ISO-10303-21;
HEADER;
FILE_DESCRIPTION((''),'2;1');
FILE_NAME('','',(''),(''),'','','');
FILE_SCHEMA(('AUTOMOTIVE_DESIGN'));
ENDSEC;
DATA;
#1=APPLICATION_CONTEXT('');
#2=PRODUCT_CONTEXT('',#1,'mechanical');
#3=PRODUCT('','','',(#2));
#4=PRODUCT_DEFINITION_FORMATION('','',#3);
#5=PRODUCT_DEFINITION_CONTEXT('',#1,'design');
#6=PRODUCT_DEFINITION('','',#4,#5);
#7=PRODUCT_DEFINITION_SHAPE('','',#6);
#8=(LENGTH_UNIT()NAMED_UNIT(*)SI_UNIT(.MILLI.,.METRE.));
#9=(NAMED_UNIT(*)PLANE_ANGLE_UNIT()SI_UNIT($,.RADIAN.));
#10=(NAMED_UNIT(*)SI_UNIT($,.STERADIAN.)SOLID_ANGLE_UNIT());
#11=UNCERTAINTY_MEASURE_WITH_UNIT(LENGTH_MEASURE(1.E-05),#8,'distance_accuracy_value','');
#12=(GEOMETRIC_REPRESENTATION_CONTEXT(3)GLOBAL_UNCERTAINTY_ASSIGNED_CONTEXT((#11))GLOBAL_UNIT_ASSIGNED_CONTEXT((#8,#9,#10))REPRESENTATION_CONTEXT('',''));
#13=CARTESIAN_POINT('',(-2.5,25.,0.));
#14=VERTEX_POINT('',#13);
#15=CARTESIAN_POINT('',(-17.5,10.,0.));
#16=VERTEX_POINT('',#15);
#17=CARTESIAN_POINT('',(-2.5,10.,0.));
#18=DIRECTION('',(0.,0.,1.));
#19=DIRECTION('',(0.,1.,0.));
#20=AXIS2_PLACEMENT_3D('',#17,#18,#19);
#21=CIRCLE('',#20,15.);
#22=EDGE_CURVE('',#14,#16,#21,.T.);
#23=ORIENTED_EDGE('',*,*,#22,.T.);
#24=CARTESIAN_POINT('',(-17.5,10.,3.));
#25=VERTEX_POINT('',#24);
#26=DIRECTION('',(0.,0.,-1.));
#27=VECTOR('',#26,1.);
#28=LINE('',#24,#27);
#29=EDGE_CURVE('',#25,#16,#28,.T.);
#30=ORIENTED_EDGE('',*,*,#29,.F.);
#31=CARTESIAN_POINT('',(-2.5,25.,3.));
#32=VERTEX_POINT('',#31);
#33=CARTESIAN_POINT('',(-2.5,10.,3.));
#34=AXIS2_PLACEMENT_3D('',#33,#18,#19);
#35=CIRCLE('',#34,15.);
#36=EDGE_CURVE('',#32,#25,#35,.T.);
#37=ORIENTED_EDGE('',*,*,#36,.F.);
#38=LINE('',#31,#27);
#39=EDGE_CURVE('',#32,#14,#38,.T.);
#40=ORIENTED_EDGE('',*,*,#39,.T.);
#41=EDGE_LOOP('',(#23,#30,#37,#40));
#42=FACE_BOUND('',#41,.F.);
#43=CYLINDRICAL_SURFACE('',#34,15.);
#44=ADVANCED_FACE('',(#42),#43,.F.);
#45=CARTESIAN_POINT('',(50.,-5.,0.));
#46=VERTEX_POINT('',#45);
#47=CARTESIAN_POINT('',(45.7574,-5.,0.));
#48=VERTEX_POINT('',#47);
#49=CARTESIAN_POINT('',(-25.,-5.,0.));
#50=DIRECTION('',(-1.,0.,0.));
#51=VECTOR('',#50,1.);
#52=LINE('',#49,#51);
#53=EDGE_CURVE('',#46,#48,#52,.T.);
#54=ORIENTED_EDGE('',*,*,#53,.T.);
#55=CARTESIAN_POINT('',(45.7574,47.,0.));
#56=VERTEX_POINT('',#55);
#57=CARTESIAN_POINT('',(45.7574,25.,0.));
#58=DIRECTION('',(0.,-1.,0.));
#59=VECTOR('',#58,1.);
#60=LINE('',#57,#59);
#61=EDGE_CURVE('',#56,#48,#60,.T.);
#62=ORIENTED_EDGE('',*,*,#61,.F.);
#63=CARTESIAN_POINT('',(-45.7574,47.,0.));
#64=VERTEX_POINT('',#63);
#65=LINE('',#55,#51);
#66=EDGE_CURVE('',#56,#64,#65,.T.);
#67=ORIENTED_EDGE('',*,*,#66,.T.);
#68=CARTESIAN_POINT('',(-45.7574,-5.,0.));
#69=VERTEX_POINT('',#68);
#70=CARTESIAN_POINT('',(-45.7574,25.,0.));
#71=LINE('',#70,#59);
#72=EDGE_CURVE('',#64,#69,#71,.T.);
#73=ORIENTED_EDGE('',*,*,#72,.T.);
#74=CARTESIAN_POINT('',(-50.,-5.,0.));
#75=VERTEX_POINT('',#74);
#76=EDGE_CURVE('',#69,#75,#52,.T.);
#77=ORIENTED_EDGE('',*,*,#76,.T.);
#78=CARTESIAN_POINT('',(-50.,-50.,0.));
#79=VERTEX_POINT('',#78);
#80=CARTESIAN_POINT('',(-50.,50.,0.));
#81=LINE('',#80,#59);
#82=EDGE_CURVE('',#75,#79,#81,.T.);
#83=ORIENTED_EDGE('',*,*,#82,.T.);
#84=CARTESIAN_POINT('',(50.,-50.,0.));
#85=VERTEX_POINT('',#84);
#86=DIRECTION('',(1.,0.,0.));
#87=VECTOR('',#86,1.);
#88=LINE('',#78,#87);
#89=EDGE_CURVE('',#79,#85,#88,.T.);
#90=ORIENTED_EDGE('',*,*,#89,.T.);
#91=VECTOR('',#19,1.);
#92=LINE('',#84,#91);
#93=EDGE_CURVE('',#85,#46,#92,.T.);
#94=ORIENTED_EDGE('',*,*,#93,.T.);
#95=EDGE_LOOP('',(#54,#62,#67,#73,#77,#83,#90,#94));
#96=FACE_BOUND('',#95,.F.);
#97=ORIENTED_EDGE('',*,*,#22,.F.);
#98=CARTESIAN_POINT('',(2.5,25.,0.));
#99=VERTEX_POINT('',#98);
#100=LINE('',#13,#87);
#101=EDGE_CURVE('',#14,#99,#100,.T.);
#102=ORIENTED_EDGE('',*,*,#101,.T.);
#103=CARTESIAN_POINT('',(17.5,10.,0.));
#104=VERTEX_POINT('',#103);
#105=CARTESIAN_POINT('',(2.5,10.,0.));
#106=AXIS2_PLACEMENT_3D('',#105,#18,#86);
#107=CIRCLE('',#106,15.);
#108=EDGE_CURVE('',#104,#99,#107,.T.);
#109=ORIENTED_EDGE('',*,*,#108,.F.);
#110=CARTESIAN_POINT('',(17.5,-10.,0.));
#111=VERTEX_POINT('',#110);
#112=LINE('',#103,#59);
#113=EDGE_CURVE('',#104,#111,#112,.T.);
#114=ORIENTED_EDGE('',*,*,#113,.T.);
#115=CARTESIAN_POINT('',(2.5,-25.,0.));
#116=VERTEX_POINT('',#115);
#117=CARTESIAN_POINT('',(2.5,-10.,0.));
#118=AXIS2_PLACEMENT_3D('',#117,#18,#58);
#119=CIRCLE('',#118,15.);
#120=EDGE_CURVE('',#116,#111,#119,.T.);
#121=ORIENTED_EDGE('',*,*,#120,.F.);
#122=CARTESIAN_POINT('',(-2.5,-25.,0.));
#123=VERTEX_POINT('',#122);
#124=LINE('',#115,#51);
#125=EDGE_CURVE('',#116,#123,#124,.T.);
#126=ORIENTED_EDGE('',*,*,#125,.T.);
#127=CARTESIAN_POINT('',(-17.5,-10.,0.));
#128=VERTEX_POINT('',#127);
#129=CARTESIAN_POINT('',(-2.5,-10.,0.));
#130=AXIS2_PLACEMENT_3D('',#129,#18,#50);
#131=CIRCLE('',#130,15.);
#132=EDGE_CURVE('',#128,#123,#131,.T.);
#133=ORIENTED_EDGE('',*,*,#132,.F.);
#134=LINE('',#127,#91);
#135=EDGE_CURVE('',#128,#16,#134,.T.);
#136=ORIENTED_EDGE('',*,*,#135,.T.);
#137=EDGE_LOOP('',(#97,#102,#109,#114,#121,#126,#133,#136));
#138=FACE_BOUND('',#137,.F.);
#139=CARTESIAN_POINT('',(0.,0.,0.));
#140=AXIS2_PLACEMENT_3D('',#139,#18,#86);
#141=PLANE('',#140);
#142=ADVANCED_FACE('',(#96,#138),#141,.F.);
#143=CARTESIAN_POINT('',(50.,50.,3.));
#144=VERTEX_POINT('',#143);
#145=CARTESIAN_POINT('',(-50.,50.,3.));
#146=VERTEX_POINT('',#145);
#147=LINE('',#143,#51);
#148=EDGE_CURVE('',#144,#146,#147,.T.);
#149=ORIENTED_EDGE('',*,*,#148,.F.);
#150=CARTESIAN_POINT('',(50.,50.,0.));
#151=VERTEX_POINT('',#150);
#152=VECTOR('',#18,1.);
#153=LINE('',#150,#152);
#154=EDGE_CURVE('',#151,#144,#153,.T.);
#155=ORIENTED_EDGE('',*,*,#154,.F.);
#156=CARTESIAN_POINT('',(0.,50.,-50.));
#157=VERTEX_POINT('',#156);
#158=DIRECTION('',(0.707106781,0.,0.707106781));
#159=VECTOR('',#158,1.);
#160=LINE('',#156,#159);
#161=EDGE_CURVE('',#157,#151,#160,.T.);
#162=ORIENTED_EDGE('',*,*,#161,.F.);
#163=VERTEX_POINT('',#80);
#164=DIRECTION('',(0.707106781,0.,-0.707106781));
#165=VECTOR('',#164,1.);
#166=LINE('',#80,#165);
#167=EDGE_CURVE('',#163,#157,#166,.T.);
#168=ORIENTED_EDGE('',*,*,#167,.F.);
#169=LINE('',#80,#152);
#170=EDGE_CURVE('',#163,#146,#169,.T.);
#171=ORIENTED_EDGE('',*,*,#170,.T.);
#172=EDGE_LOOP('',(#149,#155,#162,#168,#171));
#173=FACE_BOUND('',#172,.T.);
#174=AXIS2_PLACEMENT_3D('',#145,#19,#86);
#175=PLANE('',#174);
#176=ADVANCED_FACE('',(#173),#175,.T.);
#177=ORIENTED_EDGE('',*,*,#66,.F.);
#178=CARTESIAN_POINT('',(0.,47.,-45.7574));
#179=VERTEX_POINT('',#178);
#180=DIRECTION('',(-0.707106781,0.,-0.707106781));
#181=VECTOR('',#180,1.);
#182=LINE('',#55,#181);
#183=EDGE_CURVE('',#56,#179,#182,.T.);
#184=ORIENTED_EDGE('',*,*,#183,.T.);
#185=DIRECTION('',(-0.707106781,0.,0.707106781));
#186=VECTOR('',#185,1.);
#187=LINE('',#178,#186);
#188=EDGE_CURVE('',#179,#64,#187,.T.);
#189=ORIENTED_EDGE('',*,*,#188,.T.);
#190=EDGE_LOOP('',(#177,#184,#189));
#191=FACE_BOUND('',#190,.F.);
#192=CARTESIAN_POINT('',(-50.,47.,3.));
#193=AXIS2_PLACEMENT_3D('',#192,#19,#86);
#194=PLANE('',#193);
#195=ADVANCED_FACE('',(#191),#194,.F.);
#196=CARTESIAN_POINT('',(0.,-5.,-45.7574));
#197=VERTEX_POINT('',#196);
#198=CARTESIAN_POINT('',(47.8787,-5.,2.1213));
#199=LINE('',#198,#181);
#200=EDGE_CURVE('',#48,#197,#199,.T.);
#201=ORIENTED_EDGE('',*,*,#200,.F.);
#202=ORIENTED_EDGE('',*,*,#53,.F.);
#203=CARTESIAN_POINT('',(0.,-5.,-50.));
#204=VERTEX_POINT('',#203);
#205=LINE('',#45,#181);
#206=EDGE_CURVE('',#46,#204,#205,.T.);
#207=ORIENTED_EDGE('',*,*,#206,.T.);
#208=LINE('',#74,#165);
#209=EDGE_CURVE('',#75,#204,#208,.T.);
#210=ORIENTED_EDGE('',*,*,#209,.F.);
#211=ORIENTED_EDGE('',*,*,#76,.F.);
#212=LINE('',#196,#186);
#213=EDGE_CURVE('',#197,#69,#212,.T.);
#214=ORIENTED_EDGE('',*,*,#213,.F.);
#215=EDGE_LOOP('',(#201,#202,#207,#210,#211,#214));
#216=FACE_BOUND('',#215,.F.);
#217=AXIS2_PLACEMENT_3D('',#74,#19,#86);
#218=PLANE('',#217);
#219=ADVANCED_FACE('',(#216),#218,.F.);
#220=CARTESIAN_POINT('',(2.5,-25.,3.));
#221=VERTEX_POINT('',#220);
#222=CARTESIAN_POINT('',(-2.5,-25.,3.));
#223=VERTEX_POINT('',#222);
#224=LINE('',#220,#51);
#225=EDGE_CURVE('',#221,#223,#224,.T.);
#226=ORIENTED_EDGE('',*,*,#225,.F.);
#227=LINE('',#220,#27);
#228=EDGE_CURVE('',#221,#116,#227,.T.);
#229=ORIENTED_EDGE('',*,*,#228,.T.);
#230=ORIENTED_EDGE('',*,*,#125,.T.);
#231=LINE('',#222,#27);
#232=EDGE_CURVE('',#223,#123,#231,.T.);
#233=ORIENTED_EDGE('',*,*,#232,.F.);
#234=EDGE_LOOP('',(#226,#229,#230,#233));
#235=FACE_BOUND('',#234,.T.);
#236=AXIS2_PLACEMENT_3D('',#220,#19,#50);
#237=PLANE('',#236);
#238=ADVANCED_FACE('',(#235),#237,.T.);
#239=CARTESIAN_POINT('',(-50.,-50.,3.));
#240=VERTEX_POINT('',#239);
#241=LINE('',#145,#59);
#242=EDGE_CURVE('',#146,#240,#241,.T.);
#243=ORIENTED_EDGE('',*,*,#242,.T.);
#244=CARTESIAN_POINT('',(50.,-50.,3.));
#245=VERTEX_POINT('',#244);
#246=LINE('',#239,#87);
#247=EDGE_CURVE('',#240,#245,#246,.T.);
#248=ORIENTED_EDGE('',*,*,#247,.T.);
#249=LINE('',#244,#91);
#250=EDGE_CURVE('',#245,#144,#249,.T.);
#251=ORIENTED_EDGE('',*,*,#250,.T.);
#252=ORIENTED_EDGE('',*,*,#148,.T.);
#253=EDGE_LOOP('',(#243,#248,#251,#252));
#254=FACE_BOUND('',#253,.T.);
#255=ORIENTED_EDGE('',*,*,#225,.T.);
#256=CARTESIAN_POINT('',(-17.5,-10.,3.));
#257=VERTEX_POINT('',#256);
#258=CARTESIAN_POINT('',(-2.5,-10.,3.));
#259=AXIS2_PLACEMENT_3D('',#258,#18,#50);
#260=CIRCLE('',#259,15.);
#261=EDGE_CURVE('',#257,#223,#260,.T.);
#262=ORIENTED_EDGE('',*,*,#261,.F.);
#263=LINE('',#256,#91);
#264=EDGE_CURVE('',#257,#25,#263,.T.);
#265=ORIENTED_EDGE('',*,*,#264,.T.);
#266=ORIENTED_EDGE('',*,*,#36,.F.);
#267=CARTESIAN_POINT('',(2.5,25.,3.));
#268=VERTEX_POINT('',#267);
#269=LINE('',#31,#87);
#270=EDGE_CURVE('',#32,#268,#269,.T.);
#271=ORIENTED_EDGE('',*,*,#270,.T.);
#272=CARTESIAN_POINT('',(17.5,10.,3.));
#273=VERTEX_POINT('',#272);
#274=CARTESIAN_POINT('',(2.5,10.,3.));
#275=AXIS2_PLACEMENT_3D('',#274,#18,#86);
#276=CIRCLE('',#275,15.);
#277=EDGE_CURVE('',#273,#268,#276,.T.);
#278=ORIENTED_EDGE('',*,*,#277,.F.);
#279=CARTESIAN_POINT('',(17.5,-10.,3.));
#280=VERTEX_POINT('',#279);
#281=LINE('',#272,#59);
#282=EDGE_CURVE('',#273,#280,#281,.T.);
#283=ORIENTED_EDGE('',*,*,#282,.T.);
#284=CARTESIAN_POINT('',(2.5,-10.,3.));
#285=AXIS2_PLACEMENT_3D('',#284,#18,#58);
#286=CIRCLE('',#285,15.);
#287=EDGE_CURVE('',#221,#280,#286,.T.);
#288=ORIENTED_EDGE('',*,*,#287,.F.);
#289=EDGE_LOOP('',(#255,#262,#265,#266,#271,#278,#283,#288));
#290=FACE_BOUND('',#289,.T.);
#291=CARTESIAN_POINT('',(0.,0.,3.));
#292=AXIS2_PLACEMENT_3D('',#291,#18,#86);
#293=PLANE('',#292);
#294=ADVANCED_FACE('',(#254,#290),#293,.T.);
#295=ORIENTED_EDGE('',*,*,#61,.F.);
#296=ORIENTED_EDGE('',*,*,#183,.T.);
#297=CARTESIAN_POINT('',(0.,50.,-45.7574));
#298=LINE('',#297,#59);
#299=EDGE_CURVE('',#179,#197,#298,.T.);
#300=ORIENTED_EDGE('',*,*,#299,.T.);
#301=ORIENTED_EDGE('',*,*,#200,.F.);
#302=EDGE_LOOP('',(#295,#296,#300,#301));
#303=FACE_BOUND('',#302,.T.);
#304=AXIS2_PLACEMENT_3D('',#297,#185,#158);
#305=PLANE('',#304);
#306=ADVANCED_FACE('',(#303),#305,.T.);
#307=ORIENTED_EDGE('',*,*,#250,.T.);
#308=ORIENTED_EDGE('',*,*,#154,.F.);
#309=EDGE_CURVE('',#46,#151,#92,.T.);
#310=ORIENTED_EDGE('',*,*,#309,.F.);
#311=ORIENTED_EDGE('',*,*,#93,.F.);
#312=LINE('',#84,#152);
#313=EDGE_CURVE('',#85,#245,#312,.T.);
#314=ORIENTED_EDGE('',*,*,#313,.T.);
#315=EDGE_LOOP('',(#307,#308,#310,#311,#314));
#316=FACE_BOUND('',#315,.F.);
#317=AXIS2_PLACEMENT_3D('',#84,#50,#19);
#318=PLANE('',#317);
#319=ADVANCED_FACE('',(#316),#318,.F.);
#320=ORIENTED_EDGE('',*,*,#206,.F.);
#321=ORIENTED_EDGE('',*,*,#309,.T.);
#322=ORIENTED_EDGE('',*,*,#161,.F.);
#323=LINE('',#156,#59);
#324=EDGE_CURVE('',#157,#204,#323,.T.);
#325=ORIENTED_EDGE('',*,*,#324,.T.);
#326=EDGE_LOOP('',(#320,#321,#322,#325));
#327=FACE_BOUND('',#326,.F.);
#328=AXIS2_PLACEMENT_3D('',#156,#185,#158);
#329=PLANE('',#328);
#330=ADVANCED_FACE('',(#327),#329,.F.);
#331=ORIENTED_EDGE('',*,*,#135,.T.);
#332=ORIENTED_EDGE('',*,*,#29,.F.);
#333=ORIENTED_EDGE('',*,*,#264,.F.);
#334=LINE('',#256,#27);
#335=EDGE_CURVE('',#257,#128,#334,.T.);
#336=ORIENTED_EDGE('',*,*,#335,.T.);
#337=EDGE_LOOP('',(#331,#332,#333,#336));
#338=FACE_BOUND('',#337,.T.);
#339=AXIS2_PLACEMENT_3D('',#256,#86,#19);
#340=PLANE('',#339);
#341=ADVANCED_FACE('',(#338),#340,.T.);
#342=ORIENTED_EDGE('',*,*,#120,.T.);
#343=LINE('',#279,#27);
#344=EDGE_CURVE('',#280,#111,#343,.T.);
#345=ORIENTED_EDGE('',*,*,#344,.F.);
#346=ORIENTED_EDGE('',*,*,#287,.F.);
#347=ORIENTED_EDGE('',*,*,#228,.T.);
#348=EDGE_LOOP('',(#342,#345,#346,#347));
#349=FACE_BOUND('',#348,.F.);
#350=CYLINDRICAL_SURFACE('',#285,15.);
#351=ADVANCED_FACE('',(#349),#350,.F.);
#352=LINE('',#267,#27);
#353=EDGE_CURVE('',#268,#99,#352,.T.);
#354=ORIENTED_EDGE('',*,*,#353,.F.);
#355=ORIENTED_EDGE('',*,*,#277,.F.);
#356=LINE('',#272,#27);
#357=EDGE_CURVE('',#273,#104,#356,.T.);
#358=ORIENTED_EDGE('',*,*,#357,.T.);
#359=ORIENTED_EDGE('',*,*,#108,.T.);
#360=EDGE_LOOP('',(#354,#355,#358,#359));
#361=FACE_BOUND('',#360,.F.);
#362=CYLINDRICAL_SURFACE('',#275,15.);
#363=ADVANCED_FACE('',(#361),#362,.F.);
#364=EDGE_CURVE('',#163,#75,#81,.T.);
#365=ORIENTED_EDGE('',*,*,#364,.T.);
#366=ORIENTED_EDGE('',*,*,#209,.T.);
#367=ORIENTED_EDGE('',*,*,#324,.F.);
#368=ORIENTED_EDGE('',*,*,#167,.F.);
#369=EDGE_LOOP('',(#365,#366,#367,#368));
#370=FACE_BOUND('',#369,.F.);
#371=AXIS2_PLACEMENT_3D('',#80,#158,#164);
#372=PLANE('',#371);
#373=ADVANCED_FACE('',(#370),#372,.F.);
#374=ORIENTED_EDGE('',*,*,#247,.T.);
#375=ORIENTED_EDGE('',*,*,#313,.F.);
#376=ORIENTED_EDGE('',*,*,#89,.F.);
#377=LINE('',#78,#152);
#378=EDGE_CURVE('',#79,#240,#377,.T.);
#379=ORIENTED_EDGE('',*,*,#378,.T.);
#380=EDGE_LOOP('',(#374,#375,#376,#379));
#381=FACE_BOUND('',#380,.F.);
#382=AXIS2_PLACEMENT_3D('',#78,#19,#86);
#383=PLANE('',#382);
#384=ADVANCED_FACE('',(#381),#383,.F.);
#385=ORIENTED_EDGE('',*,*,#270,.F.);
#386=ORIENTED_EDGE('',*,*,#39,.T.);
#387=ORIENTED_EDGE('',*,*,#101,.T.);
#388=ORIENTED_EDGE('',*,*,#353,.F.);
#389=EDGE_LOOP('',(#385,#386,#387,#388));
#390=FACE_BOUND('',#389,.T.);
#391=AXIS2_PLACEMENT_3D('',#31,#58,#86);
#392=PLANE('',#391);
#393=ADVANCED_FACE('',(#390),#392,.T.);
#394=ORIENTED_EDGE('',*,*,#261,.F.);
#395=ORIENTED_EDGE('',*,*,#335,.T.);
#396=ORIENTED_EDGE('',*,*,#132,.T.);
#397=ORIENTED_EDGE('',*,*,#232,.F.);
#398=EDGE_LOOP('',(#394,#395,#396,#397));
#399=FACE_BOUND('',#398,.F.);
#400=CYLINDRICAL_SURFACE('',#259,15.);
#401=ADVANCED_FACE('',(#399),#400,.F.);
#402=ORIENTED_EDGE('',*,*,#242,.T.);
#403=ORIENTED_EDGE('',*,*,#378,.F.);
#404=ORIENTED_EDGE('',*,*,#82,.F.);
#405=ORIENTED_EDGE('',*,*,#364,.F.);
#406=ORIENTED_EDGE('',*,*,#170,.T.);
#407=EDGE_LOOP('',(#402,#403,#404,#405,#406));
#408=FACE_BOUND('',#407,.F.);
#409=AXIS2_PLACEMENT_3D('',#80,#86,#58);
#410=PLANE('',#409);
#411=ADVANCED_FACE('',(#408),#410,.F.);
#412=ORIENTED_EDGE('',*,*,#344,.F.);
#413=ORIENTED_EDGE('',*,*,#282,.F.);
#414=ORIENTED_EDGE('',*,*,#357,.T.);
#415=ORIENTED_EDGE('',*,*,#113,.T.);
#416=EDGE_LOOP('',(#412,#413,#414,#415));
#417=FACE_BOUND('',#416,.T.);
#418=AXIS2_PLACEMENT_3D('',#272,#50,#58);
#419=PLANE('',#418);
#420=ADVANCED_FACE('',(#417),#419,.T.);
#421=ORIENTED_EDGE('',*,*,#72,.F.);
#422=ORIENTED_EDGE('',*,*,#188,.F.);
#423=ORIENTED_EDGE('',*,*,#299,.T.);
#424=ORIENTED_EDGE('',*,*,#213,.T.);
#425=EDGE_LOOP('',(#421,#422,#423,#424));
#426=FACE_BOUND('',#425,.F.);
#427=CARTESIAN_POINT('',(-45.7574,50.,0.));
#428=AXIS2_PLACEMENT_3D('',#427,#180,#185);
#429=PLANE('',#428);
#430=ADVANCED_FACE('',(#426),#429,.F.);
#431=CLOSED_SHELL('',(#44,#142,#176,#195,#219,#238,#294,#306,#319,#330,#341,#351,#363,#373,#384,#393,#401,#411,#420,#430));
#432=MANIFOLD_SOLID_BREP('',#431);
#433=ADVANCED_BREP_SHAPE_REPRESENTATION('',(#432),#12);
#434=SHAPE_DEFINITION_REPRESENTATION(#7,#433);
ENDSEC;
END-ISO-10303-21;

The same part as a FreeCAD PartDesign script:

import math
import FreeCAD as App
import Part
import Sketcher
from FreeCAD import Vector


def add_polygon(sketch, points):
    """Adds a closed chain of lines whose ends are joined by coincident constraints."""
    first, n = sketch.GeometryCount, len(points)
    for a, b in zip(points, points[1:] + points[:1]):
        sketch.addGeometry(Part.LineSegment(App.Vector(*a, 0), App.Vector(*b, 0)), False)
    for i in range(n):
        sketch.addConstraint(Sketcher.Constraint("Coincident", first + i, 2, first + (i + 1) % n, 1))

doc = App.newDocument("Part")
params = doc.addObject("Spreadsheet::Sheet", "Params")
for row, (alias, value) in enumerate([
    ("sketch1_width", "100 mm"),
    ("pad1_length", "3 mm"),
    ("sketch2_length", "3 mm"),
    ("pad2_length", "55 mm"),
    ("sketch3_radius", "15 mm"),
    ("sketch3_width", "5 mm"),
    ("pocket1_length", "3 mm"),
    ("pad3_length", "3 mm"),
], start=1):
    params.set(f"A{row}", alias)
    params.set(f"B{row}", "=" + value)
    params.setAlias(f"B{row}", alias)

body = doc.addObject("PartDesign::Body", "Body")

# Sketch on XY plane
sketch1 = body.newObject("Sketcher::SketchObject", "Sketch")
sketch1.AttachmentSupport = (doc.getObject("XY_Plane"), [""])
sketch1.MapMode = "FlatFace"
add_polygon(sketch1, [(-50, 50), (-50, -50), (50, -50), (50, 50)])  # lines 0-3
sketch1.addConstraint([
    Sketcher.Constraint("Vertical", 0),
    Sketcher.Constraint("Horizontal", 1),
    Sketcher.Constraint("Vertical", 2),
    Sketcher.Constraint("Horizontal", 3),
    Sketcher.Constraint("Symmetric", 0, 2, 2, 2, -1, 1),
    Sketcher.Constraint("Equal", 3, 0),
    Sketcher.Constraint("DistanceX", 1, 1, 1, 2, 100.0),
])
sketch1.setExpression("Constraints[10]", "Params.sketch1_width")
pad1 = body.newObject("PartDesign::Pad", "Pad")
pad1.Profile = sketch1
pad1.setExpression("Length", "Params.pad1_length")

# Sketch on XZ plane
sketch2 = body.newObject("Sketcher::SketchObject", "Sketch001")
sketch2.AttachmentSupport = (doc.getObject("XZ_Plane"), [""])
sketch2.MapMode = "FlatFace"
sketch2.AttachmentOffset = App.Placement(Vector(0, 0, -50), App.Rotation())
add_polygon(sketch2, [(0, -50), (-50, 0), (-47.9, 2.1), (0, -45.8), (47.9, 2.1), (50, 0)])  # lines 0-5
sketch2.addConstraint([
    Sketcher.Constraint("Symmetric", 0, 2, 4, 2, -1, 1),
    Sketcher.Constraint("Symmetric", 1, 2, 3, 2, -2),
    Sketcher.Constraint("PointOnObject", 0, 2, -1),
    Sketcher.Constraint("PointOnObject", 2, 2, -2),
    Sketcher.Constraint("PointOnObject", 5, 2, -2),
    Sketcher.Constraint("Perpendicular", 0, 1),
    Sketcher.Constraint("Perpendicular", 1, 2),
    Sketcher.Constraint("Perpendicular", 2, 3),
    Sketcher.Constraint("Distance", 1, 3.0),
    Sketcher.Constraint("DistanceX", 0, 2, -1, 1, 50.0),
])
sketch2.setExpression("Constraints[14]", "Params.sketch2_length")
pad2 = body.newObject("PartDesign::Pad", "Pad001")
pad2.Profile = sketch2
pad2.setExpression("Length", "Params.pad2_length")

# Sketch on XY plane
sketch3 = body.newObject("Sketcher::SketchObject", "Sketch002")
sketch3.AttachmentSupport = (doc.getObject("XY_Plane"), [""])
sketch3.MapMode = "FlatFace"
sketch3.AttachmentOffset = App.Placement(Vector(0, 0, 3), App.Rotation())
sketch3.addGeometry([
    Part.LineSegment(Vector(-2, -25, 0), Vector(2, -25, 0)),  # 0
    Part.ArcOfCircle(Part.Circle(Vector(2, -10, 0), Vector(0, 0, 1), 15), math.radians(-90), math.radians(0)),  # 1
    Part.LineSegment(Vector(18, -10, 0), Vector(18, 10, 0)),  # 2
    Part.ArcOfCircle(Part.Circle(Vector(2, 10, 0), Vector(0, 0, 1), 15), math.radians(0), math.radians(90)),  # 3
    Part.LineSegment(Vector(2, 25, 0), Vector(-2, 25, 0)),  # 4
    Part.ArcOfCircle(Part.Circle(Vector(-2, 10, 0), Vector(0, 0, 1), 15), math.radians(90), math.radians(180)),  # 5
    Part.LineSegment(Vector(-18, 10, 0), Vector(-18, -10, 0)),  # 6
    Part.ArcOfCircle(Part.Circle(Vector(-2, -10, 0), Vector(0, 0, 1), 15), math.radians(180), math.radians(270)),  # 7
], False)
sketch3.addConstraint([
    Sketcher.Constraint("Tangent", 0, 2, 1, 1),
    Sketcher.Constraint("Tangent", 1, 2, 2, 1),
    Sketcher.Constraint("Tangent", 2, 2, 3, 1),
    Sketcher.Constraint("Tangent", 3, 2, 4, 1),
    Sketcher.Constraint("Tangent", 4, 2, 5, 1),
    Sketcher.Constraint("Tangent", 5, 2, 6, 1),
    Sketcher.Constraint("Tangent", 6, 2, 7, 1),
    Sketcher.Constraint("Tangent", 7, 2, 0, 1),
    Sketcher.Constraint("Horizontal", 0),
    Sketcher.Constraint("Vertical", 2),
    Sketcher.Constraint("Horizontal", 4),
    Sketcher.Constraint("Vertical", 6),
    Sketcher.Constraint("Equal", 1, 3),
    Sketcher.Constraint("Equal", 3, 5),
    Sketcher.Constraint("Equal", 5, 7),
    Sketcher.Constraint("Symmetric", 1, 3, 5, 3, -1, 1),
    Sketcher.Constraint("Radius", 1, 15.0),
    Sketcher.Constraint("DistanceY", 0, 2, 3, 3, 35.0),
    Sketcher.Constraint("DistanceX", 0, 1, 0, 2, 5.0),
])
sketch3.setExpression("Constraints[16]", "Params.sketch3_radius")
sketch3.setExpression("Constraints[18]", "Params.sketch3_width")
pocket1 = body.newObject("PartDesign::Pocket", "Pocket")
pocket1.Profile = sketch3
pocket1.setExpression("Length", "Params.pocket1_length")

# Sketch on XZ plane
sketch4 = body.newObject("Sketcher::SketchObject", "Sketch003")
sketch4.AttachmentSupport = (doc.getObject("XZ_Plane"), [""])
sketch4.MapMode = "FlatFace"
sketch4.AttachmentOffset = App.Placement(Vector(0, 0, -50), App.Rotation())
add_polygon(sketch4, [(-46, 0), (46, 0), (0, -46)])  # lines 0-2
sketch4.addConstraint([
    Sketcher.Constraint("Horizontal", 0),
    Sketcher.Constraint("Symmetric", 0, 2, 2, 2, -1, 1),
    Sketcher.Constraint("PointOnObject", 1, 2, -2),
    Sketcher.Constraint("Perpendicular", 1, 2),
    Sketcher.Constraint("DistanceX", 0, 1, 0, 2, 91.5148),
])
pad3 = body.newObject("PartDesign::Pad", "Pad002")
pad3.Profile = sketch4
pad3.setExpression("Length", "Params.pad3_length")

doc.recompute()
